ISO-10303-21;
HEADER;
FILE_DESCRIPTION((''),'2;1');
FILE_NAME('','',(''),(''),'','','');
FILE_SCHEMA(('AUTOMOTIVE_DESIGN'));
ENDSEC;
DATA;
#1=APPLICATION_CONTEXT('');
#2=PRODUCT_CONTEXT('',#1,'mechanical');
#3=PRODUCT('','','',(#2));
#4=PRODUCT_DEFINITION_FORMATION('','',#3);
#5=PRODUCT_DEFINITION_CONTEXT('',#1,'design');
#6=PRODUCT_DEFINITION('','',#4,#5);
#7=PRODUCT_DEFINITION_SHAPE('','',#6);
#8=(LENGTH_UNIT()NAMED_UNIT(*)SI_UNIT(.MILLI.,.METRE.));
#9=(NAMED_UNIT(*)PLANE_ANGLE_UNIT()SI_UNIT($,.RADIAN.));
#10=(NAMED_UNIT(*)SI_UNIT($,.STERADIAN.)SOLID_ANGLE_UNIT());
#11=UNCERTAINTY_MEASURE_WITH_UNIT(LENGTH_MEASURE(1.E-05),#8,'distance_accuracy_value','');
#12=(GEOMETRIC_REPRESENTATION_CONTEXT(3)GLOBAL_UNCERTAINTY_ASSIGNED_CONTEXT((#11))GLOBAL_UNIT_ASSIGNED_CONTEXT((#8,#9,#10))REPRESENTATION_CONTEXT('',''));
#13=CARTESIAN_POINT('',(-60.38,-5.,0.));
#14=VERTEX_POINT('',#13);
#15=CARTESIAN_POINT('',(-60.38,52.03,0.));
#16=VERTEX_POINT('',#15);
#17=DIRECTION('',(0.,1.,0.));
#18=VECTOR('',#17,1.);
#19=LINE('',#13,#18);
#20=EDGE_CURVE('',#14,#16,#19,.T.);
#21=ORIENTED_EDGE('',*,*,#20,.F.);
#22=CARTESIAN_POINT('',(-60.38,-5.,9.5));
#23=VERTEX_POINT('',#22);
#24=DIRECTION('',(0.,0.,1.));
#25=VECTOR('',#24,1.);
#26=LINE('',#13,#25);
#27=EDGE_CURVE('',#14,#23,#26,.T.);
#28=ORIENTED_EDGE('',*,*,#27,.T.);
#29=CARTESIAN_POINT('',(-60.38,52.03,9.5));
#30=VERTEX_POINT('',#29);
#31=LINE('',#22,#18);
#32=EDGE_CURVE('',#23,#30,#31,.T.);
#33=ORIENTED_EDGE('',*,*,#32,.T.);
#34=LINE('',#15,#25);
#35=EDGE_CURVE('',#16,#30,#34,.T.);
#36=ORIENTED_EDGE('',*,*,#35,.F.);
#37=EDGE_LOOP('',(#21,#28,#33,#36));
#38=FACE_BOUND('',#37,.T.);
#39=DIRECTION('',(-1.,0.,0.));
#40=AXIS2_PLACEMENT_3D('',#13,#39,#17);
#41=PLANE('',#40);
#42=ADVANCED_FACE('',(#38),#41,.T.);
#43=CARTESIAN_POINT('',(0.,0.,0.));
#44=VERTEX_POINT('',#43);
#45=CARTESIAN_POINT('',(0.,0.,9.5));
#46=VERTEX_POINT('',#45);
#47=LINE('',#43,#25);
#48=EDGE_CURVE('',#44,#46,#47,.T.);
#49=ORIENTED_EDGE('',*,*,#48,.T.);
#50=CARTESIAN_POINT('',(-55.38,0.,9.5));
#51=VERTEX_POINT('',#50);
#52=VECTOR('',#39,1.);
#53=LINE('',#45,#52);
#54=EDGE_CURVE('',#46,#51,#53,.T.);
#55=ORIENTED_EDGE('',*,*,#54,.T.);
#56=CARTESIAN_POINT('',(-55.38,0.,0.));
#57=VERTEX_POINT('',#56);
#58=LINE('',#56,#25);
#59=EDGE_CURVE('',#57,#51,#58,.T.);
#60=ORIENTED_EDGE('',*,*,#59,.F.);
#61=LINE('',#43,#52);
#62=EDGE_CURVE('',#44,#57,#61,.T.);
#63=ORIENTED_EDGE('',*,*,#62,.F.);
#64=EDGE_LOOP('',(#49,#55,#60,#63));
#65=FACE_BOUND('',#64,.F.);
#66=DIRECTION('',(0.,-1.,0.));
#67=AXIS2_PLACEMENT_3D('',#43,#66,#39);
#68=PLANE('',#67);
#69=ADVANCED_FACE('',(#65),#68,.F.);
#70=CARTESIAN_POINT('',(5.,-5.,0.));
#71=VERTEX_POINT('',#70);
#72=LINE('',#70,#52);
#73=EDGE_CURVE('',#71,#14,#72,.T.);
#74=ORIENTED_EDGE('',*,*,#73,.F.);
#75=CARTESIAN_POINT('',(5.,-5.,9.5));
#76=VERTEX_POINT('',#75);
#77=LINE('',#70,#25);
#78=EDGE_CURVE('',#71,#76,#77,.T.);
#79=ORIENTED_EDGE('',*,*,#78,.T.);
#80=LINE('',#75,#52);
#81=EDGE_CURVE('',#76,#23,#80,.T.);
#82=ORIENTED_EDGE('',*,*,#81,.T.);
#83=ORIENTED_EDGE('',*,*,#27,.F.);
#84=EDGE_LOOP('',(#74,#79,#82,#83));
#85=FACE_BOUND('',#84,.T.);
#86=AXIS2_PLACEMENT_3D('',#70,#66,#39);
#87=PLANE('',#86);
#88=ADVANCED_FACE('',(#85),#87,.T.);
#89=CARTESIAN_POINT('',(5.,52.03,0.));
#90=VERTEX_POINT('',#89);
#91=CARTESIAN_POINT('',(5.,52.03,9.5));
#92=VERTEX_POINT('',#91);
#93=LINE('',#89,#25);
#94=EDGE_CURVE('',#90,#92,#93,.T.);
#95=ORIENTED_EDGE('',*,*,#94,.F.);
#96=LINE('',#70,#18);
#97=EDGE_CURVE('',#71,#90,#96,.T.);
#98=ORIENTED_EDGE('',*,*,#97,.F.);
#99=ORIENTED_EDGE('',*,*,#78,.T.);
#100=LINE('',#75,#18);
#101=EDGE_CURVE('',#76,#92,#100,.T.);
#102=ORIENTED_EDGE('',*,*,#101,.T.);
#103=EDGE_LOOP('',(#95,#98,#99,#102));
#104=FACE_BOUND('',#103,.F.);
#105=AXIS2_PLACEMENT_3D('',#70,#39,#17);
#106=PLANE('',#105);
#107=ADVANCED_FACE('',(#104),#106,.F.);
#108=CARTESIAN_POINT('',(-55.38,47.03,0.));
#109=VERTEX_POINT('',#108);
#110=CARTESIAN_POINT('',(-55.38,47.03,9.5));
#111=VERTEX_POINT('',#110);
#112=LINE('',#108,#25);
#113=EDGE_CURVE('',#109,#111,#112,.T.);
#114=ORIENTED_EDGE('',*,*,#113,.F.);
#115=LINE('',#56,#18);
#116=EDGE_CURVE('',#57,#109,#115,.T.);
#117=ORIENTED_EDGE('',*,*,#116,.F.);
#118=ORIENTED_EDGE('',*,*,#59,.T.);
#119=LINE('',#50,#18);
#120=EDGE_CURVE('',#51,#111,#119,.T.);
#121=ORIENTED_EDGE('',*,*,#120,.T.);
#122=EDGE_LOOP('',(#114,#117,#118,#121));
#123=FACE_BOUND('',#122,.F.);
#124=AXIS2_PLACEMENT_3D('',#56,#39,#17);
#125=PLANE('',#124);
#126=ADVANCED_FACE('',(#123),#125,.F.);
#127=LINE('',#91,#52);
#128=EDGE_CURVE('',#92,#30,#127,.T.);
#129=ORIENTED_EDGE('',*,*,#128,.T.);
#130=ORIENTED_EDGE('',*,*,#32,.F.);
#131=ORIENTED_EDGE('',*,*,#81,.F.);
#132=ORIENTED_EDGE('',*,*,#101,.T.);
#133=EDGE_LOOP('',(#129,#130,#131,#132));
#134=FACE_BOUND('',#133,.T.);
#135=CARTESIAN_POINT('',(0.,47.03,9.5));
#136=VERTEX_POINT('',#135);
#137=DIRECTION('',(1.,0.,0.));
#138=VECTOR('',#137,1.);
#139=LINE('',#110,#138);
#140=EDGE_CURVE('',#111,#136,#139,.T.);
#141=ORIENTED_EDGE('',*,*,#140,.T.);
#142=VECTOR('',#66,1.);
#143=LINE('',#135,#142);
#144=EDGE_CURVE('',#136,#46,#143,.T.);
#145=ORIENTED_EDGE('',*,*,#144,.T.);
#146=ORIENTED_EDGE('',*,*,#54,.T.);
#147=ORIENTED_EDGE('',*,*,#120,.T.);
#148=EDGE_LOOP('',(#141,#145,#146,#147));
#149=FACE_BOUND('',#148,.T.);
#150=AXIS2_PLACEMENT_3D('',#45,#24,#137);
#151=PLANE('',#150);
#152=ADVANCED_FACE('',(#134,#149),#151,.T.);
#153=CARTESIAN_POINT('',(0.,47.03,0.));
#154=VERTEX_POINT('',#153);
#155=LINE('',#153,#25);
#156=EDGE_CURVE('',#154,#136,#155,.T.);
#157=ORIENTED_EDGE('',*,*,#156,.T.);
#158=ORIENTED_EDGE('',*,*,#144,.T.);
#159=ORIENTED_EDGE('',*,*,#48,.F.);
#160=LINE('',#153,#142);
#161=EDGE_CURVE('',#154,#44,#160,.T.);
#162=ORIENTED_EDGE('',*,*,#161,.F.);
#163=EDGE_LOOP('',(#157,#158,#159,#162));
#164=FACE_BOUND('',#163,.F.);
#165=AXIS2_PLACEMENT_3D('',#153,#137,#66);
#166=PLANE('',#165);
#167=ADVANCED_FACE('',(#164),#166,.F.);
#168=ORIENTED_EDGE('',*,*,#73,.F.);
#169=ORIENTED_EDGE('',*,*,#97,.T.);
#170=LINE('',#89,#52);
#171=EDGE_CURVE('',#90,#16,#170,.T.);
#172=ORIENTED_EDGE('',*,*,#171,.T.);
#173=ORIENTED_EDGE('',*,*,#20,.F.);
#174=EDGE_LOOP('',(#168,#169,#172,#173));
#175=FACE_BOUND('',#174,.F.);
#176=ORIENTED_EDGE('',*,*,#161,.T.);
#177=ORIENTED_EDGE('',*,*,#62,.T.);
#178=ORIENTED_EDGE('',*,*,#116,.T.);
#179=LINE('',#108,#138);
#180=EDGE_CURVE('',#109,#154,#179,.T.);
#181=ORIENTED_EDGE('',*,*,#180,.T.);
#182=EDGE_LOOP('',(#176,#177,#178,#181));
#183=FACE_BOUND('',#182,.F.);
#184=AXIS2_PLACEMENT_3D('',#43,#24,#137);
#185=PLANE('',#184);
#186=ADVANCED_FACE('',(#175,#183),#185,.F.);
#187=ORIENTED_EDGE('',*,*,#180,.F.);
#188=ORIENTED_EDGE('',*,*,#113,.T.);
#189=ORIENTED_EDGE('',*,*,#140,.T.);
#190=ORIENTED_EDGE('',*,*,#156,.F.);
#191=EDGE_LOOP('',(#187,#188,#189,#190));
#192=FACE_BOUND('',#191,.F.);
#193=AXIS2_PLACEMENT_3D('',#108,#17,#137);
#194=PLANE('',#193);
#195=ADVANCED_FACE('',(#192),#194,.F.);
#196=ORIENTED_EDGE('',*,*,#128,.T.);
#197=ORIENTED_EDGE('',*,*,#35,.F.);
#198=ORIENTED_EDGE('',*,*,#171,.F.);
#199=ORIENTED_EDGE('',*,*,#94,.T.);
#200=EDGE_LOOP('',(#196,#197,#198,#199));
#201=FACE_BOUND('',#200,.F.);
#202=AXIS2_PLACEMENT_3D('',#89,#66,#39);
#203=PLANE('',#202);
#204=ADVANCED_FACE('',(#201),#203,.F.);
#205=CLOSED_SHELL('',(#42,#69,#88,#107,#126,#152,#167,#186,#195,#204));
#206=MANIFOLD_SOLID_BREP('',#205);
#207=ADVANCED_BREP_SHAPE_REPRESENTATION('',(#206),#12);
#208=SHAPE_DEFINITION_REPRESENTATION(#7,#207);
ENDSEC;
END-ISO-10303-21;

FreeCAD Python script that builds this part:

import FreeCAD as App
import Part
import Sketcher

V = App.Vector

doc = App.newDocument("Part")
body = doc.addObject("PartDesign::Body", "Body")

# Sketch on XY plane
sketch1 = body.newObject("Sketcher::SketchObject", "Sketch")
sketch1.AttachmentSupport = (doc.getObject("XY_Plane"), [""])
sketch1.MapMode = "FlatFace"
sketch1.addGeometry(Part.LineSegment(V(-60.38, -5, 0), V(5, -5, 0)), False)
sketch1.addGeometry(Part.LineSegment(V(5, -5, 0), V(5, 52.03, 0)), False)
sketch1.addGeometry(Part.LineSegment(V(5, 52.03, 0), V(-60.38, 52.03, 0)), False)
sketch1.addGeometry(Part.LineSegment(V(-60.38, 52.03, 0), V(-60.38, -5, 0)), False)
sketch1.addGeometry(Part.LineSegment(V(0, 47.03, 0), V(0, 0, 0)), False)
sketch1.addGeometry(Part.LineSegment(V(0, 0, 0), V(-55.38, 0, 0)), False)
sketch1.addGeometry(Part.LineSegment(V(-55.38, 0, 0), V(-55.38, 47.03, 0)), False)
sketch1.addGeometry(Part.LineSegment(V(-55.38, 47.03, 0), V(0, 47.03, 0)), False)
sketch1.addConstraint(Sketcher.Constraint("Coincident", 0, 2, 1, 1))
sketch1.addConstraint(Sketcher.Constraint("Coincident", 1, 2, 2, 1))
sketch1.addConstraint(Sketcher.Constraint("Coincident", 2, 2, 3, 1))
sketch1.addConstraint(Sketcher.Constraint("Coincident", 3, 2, 0, 1))
sketch1.addConstraint(Sketcher.Constraint("Coincident", 4, 2, 5, 1))
sketch1.addConstraint(Sketcher.Constraint("Coincident", 5, 2, 6, 1))
sketch1.addConstraint(Sketcher.Constraint("Coincident", 6, 2, 7, 1))
sketch1.addConstraint(Sketcher.Constraint("Coincident", 7, 2, 4, 1))
sketch1.addConstraint(Sketcher.Constraint("Horizontal", 0))
sketch1.addConstraint(Sketcher.Constraint("Vertical", 1))
sketch1.addConstraint(Sketcher.Constraint("Horizontal", 2))
sketch1.addConstraint(Sketcher.Constraint("Vertical", 3))
sketch1.addConstraint(Sketcher.Constraint("Vertical", 4))
sketch1.addConstraint(Sketcher.Constraint("Horizontal", 5))
sketch1.addConstraint(Sketcher.Constraint("Vertical", 6))
sketch1.addConstraint(Sketcher.Constraint("Horizontal", 7))
sketch1.addConstraint(Sketcher.Constraint("Coincident", 4, 2, -1, 1))
sketch1.addConstraint(Sketcher.Constraint("DistanceX", 5, 2, 5, 1, 55.38))
sketch1.addConstraint(Sketcher.Constraint("DistanceY", 4, 2, 4, 1, 47.03))
sketch1.addConstraint(Sketcher.Constraint("DistanceX", -1, 1, 0, 2, 5.0))
sketch1.addConstraint(Sketcher.Constraint("DistanceY", 0, 2, -1, 1, 5.0))
sketch1.addConstraint(Sketcher.Constraint("DistanceX", 3, 2, 5, 2, 5.0))
sketch1.addConstraint(Sketcher.Constraint("DistanceY", 6, 2, 2, 2, 5.0))
pad1 = body.newObject("PartDesign::Pad", "Pad")
pad1.Profile = sketch1
pad1.Length = 9.5

doc.recompute()
